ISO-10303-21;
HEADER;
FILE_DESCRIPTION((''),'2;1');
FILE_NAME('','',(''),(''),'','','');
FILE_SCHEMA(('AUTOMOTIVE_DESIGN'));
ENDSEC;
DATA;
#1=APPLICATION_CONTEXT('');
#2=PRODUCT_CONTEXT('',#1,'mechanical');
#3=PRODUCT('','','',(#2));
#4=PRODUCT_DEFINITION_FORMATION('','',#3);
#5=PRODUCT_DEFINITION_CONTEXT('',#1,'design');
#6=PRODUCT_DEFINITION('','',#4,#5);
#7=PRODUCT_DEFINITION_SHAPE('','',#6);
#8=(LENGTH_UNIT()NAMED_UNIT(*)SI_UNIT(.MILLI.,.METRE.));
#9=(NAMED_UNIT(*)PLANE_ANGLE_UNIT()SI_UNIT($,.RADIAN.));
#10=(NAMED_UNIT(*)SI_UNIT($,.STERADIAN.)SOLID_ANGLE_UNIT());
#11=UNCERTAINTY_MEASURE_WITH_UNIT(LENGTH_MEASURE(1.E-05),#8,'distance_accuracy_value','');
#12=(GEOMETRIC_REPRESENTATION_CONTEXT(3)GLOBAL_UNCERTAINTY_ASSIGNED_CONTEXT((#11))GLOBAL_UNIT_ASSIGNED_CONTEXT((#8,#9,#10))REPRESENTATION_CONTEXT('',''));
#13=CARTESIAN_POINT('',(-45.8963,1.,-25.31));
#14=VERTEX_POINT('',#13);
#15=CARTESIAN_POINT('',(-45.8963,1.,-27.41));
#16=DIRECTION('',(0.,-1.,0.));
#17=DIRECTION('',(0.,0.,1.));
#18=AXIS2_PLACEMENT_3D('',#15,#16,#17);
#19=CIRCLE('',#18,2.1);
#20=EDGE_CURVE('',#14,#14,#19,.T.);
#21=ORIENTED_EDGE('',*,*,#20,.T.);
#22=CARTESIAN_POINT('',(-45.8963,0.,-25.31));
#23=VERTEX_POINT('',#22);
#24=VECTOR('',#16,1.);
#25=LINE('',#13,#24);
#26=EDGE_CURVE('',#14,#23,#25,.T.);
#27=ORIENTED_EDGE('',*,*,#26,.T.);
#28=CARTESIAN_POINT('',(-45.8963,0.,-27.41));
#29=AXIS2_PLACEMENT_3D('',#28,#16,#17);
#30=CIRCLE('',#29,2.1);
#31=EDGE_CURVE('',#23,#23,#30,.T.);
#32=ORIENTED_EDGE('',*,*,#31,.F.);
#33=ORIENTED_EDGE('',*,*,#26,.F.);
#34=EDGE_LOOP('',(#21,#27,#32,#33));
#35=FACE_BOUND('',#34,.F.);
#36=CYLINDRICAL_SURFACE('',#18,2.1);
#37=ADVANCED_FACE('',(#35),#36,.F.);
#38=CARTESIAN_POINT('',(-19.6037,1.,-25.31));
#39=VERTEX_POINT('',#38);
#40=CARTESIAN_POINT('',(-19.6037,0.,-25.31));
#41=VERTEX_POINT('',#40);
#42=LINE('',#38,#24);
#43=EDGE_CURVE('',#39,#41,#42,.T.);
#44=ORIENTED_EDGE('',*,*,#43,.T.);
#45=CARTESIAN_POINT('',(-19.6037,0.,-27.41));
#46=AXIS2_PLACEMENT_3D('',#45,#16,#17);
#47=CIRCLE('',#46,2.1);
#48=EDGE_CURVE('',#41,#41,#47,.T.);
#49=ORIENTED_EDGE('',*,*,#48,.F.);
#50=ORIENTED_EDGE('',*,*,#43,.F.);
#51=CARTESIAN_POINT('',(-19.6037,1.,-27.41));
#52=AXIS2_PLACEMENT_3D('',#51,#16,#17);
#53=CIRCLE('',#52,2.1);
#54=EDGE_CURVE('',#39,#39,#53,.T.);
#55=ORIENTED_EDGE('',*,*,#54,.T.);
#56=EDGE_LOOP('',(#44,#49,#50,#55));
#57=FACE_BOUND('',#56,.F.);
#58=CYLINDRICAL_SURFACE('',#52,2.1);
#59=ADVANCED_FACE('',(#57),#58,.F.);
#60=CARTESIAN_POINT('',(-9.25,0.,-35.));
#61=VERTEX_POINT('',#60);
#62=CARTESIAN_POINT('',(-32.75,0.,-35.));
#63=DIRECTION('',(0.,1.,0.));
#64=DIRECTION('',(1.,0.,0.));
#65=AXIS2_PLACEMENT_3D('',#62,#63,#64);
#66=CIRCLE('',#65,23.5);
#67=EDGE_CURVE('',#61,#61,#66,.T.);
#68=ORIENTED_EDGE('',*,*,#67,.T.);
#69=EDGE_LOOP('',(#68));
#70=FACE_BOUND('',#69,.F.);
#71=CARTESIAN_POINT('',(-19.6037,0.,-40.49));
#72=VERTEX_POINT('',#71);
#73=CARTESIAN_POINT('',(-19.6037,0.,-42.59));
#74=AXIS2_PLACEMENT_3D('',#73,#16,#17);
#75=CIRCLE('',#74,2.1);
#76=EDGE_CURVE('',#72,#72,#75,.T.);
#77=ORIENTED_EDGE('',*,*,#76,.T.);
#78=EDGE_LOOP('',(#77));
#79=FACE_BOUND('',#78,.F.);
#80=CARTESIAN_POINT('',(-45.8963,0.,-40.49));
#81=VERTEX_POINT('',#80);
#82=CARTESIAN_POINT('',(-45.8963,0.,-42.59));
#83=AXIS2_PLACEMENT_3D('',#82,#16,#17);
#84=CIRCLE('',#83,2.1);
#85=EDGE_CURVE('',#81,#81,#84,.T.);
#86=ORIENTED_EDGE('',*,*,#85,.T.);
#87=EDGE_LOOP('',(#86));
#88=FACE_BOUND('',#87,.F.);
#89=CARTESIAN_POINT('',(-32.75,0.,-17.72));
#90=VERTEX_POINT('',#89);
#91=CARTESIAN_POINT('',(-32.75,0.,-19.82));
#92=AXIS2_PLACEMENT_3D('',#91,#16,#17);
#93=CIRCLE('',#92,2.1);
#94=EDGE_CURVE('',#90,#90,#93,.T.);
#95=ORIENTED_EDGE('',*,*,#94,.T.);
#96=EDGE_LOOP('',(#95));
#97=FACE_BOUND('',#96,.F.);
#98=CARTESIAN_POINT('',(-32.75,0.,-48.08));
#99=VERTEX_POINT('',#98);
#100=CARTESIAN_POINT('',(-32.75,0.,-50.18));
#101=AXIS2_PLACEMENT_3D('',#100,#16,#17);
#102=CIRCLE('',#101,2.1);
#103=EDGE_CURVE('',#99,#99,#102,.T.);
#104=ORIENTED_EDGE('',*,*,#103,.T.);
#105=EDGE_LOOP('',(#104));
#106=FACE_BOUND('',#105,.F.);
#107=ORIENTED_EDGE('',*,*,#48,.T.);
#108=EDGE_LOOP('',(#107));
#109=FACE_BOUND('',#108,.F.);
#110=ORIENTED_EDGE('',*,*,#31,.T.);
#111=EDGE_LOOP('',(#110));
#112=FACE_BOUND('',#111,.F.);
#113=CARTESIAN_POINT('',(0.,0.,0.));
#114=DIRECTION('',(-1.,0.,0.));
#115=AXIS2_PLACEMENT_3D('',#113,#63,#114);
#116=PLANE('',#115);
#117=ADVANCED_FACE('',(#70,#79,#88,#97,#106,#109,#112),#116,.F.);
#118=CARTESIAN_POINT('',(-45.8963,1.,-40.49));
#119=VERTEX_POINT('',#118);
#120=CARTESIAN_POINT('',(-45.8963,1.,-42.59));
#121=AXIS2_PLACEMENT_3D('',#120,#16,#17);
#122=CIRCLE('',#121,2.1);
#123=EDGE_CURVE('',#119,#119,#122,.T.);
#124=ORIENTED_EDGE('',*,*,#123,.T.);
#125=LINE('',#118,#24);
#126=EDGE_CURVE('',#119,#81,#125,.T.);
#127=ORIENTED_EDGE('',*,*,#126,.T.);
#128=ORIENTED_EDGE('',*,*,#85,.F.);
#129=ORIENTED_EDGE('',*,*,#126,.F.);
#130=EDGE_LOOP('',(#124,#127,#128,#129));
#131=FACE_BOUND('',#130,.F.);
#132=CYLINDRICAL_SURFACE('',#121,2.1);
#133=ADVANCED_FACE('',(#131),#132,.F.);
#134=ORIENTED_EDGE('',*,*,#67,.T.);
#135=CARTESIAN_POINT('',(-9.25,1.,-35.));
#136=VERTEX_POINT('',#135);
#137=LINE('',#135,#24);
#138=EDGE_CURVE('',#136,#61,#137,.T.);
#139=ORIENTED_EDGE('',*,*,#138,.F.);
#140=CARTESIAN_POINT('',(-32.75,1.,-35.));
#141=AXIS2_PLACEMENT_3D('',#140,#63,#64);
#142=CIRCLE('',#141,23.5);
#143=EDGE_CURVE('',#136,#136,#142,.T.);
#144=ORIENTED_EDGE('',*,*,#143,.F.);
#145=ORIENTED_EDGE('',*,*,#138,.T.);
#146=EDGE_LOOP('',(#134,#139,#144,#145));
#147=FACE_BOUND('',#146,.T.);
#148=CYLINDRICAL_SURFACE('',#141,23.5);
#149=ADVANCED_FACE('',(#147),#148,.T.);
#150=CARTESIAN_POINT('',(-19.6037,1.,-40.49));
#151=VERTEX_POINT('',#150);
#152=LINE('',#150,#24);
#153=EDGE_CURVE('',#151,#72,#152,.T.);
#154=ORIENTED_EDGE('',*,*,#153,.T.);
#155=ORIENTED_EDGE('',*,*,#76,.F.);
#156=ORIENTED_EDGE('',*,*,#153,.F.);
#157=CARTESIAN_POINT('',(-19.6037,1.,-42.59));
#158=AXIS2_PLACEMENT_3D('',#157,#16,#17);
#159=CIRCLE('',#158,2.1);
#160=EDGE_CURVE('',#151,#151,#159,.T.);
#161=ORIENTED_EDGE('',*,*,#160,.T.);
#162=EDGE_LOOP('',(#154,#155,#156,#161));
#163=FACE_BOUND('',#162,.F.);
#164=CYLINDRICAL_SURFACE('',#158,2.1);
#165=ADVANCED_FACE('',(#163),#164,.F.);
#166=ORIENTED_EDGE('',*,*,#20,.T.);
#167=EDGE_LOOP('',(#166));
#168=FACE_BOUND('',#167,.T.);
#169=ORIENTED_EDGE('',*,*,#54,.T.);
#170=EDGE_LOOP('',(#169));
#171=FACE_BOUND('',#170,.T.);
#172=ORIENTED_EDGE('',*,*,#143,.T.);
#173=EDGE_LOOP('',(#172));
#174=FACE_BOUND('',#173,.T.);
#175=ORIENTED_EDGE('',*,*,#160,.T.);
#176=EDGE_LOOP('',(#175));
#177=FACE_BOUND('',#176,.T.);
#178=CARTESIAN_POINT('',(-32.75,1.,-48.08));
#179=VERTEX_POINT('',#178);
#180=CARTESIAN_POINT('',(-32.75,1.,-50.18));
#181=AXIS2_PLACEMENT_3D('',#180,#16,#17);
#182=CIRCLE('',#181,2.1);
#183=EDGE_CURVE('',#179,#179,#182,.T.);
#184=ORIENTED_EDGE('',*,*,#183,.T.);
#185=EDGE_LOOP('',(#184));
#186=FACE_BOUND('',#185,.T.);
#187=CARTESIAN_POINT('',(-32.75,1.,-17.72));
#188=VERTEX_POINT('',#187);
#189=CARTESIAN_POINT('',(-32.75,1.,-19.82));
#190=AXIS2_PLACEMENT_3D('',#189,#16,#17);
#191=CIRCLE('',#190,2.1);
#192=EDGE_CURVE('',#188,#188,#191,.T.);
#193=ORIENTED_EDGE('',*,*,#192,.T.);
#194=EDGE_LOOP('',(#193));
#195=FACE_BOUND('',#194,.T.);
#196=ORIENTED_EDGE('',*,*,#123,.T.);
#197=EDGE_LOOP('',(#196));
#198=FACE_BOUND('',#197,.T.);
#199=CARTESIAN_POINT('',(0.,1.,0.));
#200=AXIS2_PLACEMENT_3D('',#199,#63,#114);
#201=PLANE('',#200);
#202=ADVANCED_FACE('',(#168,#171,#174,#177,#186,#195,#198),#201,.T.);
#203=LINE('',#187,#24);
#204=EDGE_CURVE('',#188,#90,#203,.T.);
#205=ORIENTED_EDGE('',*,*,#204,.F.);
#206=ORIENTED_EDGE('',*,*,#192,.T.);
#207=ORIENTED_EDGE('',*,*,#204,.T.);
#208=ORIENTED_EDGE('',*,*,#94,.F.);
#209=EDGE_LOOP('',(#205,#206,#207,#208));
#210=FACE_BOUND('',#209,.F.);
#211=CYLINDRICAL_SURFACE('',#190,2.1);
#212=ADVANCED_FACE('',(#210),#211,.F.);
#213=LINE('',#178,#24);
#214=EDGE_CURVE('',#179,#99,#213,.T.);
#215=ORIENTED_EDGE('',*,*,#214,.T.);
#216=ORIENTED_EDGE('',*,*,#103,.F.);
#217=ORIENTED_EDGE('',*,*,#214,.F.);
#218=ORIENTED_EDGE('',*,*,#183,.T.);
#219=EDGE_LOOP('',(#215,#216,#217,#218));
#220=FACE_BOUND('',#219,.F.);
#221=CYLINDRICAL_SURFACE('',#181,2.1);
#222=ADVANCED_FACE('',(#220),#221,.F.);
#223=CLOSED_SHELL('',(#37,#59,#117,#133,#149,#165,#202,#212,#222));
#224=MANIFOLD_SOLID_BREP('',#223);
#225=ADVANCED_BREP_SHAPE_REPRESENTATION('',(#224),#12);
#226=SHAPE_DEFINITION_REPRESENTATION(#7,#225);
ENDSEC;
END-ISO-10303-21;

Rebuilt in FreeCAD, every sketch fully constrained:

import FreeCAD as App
import Part
import Sketcher
Q = App.Units.Quantity


def add_polygon(sketch, points):
    """Adds a closed chain of lines whose ends are joined by coincident constraints."""
    first, n = sketch.GeometryCount, len(points)
    for a, b in zip(points, points[1:] + points[:1]):
        sketch.addGeometry(Part.LineSegment(App.Vector(*a, 0), App.Vector(*b, 0)), False)
    for i in range(n):
        sketch.addConstraint(Sketcher.Constraint("Coincident", first + i, 2, first + (i + 1) % n, 1))

doc = App.newDocument("Part")
body = doc.addObject("PartDesign::Body", "Body")

# Sketch on XZ plane
sketch1 = body.newObject("Sketcher::SketchObject", "Sketch")
sketch1.AttachmentSupport = (doc.getObject("XZ_Plane"), [""])
sketch1.MapMode = "FlatFace"
add_polygon(sketch1, [(-66, 0), (0, 0), (0, -70), (-66, -70)])  # lines 0-3
sketch1.addConstraint([
    Sketcher.Constraint("Horizontal", 0),
    Sketcher.Constraint("Vertical", 1),
    Sketcher.Constraint("Horizontal", 2),
    Sketcher.Constraint("Vertical", 3),
    Sketcher.Constraint("Coincident", 0, 2, -1, 1),
    Sketcher.Constraint("DistanceY", 1, 2, 1, 1, Q("70 mm")),
    Sketcher.Constraint("DistanceX", 0, 1, 0, 2, Q("65.5 mm")),
])
pad1 = body.newObject("PartDesign::Pad", "Pad")
pad1.Profile = sketch1
pad1.Length = 1
pad1.Reversed = True

# Sketch on XZ plane
sketch2 = body.newObject("Sketcher::SketchObject", "Sketch001")
sketch2.AttachmentSupport = (doc.getObject("XZ_Plane"), [""])
sketch2.MapMode = "FlatFace"
sketch2.AttachmentOffset = App.Placement(App.Vector(0, 0, -1), App.Rotation())
sketch2.addGeometry([
    Part.Circle(App.Vector(-32.8, -50.2, 0), App.Vector(0, 0, 1), 2.1),  # 0
    Part.Circle(App.Vector(-45.9, -42.6, 0), App.Vector(0, 0, 1), 2.1),  # 1
    Part.Circle(App.Vector(-45.9, -27.4, 0), App.Vector(0, 0, 1), 2.1),  # 2
    Part.Circle(App.Vector(-32.8, -19.8, 0), App.Vector(0, 0, 1), 2.1),  # 3
    Part.Circle(App.Vector(-19.6, -27.4, 0), App.Vector(0, 0, 1), 2.1),  # 4
    Part.Circle(App.Vector(-19.6, -42.6, 0), App.Vector(0, 0, 1), 2.1),  # 5
], False)
sketch2.addConstraint([
    Sketcher.Constraint("Equal", 0, 1),
    Sketcher.Constraint("Equal", 1, 2),
    Sketcher.Constraint("Equal", 2, 3),
    Sketcher.Constraint("Equal", 3, 4),
    Sketcher.Constraint("Equal", 4, 5),
    Sketcher.Constraint("Horizontal", 2, 3, 4, 3),
    Sketcher.Constraint("Horizontal", 1, 3, 5, 3),
    Sketcher.Constraint("Vertical", 1, 3, 2, 3),
    Sketcher.Constraint("Vertical", 0, 3, 3, 3),
    Sketcher.Constraint("Vertical", 4, 3, 5, 3),
    Sketcher.Constraint("Diameter", 0, Q("4.2 mm")),
    Sketcher.Constraint("DistanceX", 0, 3, -1, 1, Q("32.75 mm")),
    Sketcher.Constraint("DistanceY", 0, 3, -1, 1, Q("50.18 mm")),
    Sketcher.Constraint("DistanceY", 1, 3, -1, 1, Q("42.59 mm")),
    Sketcher.Constraint("DistanceY", 2, 3, -1, 1, Q("27.41 mm")),
    Sketcher.Constraint("DistanceY", 3, 3, -1, 1, Q("19.82 mm")),
    Sketcher.Constraint("DistanceX", 1, 3, -1, 1, Q("45.8963 mm")),
    Sketcher.Constraint("DistanceX", 4, 3, -1, 1, Q("19.6037 mm")),
])
doc.recompute()
hole = body.newObject("PartDesign::Hole", "Hole")
hole.Profile = sketch2
hole.ThreadType = "None"
hole.Diameter = 4.2
hole.DepthType = "ThroughAll"
hole.Reversed = True

# Sketch on XZ plane
sketch3 = body.newObject("Sketcher::SketchObject", "Sketch002")
sketch3.AttachmentSupport = (doc.getObject("XZ_Plane"), [""])
sketch3.MapMode = "FlatFace"
sketch3.AttachmentOffset = App.Placement(App.Vector(0, 0, -1), App.Rotation())
add_polygon(sketch3, [(0, -70), (-66, -70), (-66, 0), (0, 0)])  # lines 0-3
sketch3.addGeometry(Part.Circle(App.Vector(-33, -35, 0), App.Vector(0, 0, 1), 24), False)  # 4
sketch3.addConstraint([
    Sketcher.Constraint("Horizontal", 0),
    Sketcher.Constraint("Vertical", 1),
    Sketcher.Constraint("Horizontal", 2),
    Sketcher.Constraint("Vertical", 3),
    Sketcher.Constraint("Coincident", 2, 2, -1, 1),
    Sketcher.Constraint("Diameter", 4, Q("47 mm")),
    Sketcher.Constraint("DistanceY", 4, 3, -1, 1, Q("35 mm")),
    Sketcher.Constraint("DistanceY", 0, 2, 4, 3, Q("35 mm")),
    Sketcher.Constraint("DistanceX", 4, 3, -1, 1, Q("32.75 mm")),
    Sketcher.Constraint("DistanceX", 0, 2, 4, 3, Q("32.75 mm")),
])
pocket1 = body.newObject("PartDesign::Pocket", "Pocket")
pocket1.Profile = sketch3
pocket1.Length = 1
pocket1.Reversed = True

doc.recompute()
